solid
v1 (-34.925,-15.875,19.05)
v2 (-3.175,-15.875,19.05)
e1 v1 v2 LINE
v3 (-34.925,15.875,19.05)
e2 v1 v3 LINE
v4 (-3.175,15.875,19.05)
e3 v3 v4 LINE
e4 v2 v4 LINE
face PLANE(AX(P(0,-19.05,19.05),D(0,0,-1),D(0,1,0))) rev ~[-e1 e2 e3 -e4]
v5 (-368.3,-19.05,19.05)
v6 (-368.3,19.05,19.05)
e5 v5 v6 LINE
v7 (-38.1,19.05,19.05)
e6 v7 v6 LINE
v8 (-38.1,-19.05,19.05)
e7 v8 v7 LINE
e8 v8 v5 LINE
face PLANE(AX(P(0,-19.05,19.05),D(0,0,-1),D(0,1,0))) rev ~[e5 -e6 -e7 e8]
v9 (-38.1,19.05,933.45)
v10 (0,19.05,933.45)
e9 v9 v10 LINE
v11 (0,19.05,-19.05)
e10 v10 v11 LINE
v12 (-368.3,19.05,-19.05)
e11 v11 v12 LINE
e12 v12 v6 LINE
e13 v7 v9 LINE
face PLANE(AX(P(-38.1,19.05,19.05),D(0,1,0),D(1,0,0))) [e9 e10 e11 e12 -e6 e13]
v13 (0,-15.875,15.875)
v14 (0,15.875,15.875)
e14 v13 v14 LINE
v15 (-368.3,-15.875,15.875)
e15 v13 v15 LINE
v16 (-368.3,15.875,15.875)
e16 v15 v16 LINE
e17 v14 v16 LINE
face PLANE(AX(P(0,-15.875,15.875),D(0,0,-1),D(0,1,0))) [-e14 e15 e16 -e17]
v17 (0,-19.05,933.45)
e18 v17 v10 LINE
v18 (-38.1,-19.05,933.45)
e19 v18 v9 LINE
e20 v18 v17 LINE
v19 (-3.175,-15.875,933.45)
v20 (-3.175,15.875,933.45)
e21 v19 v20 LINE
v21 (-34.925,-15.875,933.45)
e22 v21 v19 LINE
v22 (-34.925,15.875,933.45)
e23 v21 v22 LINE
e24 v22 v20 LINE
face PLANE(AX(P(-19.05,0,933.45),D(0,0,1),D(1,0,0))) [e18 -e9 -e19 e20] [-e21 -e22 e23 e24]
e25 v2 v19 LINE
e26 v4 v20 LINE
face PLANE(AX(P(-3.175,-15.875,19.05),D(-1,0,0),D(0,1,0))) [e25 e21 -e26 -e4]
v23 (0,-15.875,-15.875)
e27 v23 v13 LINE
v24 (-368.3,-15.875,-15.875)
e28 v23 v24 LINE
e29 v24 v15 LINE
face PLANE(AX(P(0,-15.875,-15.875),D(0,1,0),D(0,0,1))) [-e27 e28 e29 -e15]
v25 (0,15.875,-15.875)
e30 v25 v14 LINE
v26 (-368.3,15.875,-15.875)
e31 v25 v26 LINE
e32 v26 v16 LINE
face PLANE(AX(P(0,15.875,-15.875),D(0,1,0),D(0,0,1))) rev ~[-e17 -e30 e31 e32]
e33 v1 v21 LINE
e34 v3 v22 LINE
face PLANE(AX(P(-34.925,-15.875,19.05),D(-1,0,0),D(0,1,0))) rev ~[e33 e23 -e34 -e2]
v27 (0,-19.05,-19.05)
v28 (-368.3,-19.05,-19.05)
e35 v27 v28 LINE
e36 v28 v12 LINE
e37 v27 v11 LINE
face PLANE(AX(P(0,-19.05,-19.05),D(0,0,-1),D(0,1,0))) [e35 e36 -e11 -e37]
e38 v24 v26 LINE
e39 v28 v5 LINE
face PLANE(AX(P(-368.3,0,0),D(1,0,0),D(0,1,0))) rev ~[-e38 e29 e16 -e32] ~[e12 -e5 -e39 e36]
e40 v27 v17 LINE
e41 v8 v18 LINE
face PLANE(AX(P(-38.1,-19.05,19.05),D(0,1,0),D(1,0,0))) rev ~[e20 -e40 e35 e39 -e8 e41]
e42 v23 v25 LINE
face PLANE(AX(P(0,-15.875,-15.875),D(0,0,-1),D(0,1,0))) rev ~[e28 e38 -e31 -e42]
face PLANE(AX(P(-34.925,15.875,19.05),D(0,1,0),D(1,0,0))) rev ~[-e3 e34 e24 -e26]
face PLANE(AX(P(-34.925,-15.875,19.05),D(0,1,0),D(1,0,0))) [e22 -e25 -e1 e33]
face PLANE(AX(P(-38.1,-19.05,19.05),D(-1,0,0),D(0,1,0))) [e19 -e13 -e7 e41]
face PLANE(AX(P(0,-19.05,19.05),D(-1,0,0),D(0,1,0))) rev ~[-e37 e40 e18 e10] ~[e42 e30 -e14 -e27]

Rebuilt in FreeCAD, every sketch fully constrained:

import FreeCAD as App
import Part
import Sketcher
Q = App.Units.Quantity


def add_polygon(sketch, points):
    """Adds a closed chain of lines whose ends are joined by coincident constraints."""
    first, n = sketch.GeometryCount, len(points)
    for a, b in zip(points, points[1:] + points[:1]):
        sketch.addGeometry(Part.LineSegment(App.Vector(*a, 0), App.Vector(*b, 0)), False)
    for i in range(n):
        sketch.addConstraint(Sketcher.Constraint("Coincident", first + i, 2, first + (i + 1) % n, 1))

doc = App.newDocument("Part")
body = doc.addObject("PartDesign::Body", "Body")

sketch1 = doc.addObject("Sketcher::SketchObject", "Sketch")
body.addObject(sketch1)
sketch1.AttachmentSupport = (doc.YZ_Plane, [""])
sketch1.MapMode = "FlatFace"
add_polygon(sketch1, [(-19, 19), (-19, -19), (19, -19), (19, 19)])
add_polygon(sketch1, [(16, -16), (-16, -16), (-16, 16), (16, 16)])
sketch1.addConstraint([
    Sketcher.Constraint("Vertical", 0),
    Sketcher.Constraint("Horizontal", 1),
    Sketcher.Constraint("Vertical", 2),
    Sketcher.Constraint("Horizontal", 3),
    Sketcher.Constraint("Horizontal", 4),
    Sketcher.Constraint("Vertical", 5),
    Sketcher.Constraint("Horizontal", 6),
    Sketcher.Constraint("Vertical", 7),
    Sketcher.Constraint("Symmetric", 0, 2, 2, 2, -1, 1),
    Sketcher.Constraint("Symmetric", 4, 2, 6, 2, -1, 1),
    Sketcher.Constraint("Equal", 3, 0),
    Sketcher.Constraint("Equal", 6, 5),
    Sketcher.Constraint("DistanceX", 1, 1, 1, 2, Q("1.5 in")),
    Sketcher.Constraint("DistanceX", 4, 2, 4, 1, Q("1.25 in")),
])
pad1 = doc.addObject("PartDesign::Pad", "Pad")
body.addObject(pad1)
pad1.Profile = sketch1
pad1.Length = Q("14.5 in")
pad1.Reversed = True

sketch2 = doc.addObject("Sketcher::SketchObject", "Sketch001")
body.addObject(sketch2)
sketch2.AttachmentSupport = (doc.XY_Plane, [""])
sketch2.MapMode = "FlatFace"
sketch2.AttachmentOffset = App.Placement(App.Vector(0, 0, 0.75 * 25.4), App.Rotation())
add_polygon(sketch2, [(-38, 19), (-38, -19), (0, -19), (0, 19)])
add_polygon(sketch2, [(-3, -16), (-35, -16), (-35, 16), (-3, 16)])
sketch2.addConstraint([
    Sketcher.Constraint("Vertical", 0),
    Sketcher.Constraint("Horizontal", 1),
    Sketcher.Constraint("Vertical", 2),
    Sketcher.Constraint("Horizontal", 3),
    Sketcher.Constraint("Horizontal", 4),
    Sketcher.Constraint("Vertical", 5),
    Sketcher.Constraint("Horizontal", 6),
    Sketcher.Constraint("Vertical", 7),
    Sketcher.Constraint("Symmetric", 1, 2, 2, 2, -1, 1),
    Sketcher.Constraint("Equal", 3, 0),
    Sketcher.Constraint("Equal", 6, 5),
    Sketcher.Constraint("DistanceX", 1, 1, 1, 2, Q("1.5 in")),
    Sketcher.Constraint("DistanceX", 4, 2, 4, 1, Q("1.25 in")),
    Sketcher.Constraint("DistanceX", 4, 2, -1, 1, Q("1.375 in")),
    Sketcher.Constraint("DistanceY", 4, 2, -1, 1, Q("0.625 in")),
])
pad2 = doc.addObject("PartDesign::Pad", "Pad001")
body.addObject(pad2)
pad2.Profile = sketch2
pad2.Length = Q("36 in")

doc.recompute()
